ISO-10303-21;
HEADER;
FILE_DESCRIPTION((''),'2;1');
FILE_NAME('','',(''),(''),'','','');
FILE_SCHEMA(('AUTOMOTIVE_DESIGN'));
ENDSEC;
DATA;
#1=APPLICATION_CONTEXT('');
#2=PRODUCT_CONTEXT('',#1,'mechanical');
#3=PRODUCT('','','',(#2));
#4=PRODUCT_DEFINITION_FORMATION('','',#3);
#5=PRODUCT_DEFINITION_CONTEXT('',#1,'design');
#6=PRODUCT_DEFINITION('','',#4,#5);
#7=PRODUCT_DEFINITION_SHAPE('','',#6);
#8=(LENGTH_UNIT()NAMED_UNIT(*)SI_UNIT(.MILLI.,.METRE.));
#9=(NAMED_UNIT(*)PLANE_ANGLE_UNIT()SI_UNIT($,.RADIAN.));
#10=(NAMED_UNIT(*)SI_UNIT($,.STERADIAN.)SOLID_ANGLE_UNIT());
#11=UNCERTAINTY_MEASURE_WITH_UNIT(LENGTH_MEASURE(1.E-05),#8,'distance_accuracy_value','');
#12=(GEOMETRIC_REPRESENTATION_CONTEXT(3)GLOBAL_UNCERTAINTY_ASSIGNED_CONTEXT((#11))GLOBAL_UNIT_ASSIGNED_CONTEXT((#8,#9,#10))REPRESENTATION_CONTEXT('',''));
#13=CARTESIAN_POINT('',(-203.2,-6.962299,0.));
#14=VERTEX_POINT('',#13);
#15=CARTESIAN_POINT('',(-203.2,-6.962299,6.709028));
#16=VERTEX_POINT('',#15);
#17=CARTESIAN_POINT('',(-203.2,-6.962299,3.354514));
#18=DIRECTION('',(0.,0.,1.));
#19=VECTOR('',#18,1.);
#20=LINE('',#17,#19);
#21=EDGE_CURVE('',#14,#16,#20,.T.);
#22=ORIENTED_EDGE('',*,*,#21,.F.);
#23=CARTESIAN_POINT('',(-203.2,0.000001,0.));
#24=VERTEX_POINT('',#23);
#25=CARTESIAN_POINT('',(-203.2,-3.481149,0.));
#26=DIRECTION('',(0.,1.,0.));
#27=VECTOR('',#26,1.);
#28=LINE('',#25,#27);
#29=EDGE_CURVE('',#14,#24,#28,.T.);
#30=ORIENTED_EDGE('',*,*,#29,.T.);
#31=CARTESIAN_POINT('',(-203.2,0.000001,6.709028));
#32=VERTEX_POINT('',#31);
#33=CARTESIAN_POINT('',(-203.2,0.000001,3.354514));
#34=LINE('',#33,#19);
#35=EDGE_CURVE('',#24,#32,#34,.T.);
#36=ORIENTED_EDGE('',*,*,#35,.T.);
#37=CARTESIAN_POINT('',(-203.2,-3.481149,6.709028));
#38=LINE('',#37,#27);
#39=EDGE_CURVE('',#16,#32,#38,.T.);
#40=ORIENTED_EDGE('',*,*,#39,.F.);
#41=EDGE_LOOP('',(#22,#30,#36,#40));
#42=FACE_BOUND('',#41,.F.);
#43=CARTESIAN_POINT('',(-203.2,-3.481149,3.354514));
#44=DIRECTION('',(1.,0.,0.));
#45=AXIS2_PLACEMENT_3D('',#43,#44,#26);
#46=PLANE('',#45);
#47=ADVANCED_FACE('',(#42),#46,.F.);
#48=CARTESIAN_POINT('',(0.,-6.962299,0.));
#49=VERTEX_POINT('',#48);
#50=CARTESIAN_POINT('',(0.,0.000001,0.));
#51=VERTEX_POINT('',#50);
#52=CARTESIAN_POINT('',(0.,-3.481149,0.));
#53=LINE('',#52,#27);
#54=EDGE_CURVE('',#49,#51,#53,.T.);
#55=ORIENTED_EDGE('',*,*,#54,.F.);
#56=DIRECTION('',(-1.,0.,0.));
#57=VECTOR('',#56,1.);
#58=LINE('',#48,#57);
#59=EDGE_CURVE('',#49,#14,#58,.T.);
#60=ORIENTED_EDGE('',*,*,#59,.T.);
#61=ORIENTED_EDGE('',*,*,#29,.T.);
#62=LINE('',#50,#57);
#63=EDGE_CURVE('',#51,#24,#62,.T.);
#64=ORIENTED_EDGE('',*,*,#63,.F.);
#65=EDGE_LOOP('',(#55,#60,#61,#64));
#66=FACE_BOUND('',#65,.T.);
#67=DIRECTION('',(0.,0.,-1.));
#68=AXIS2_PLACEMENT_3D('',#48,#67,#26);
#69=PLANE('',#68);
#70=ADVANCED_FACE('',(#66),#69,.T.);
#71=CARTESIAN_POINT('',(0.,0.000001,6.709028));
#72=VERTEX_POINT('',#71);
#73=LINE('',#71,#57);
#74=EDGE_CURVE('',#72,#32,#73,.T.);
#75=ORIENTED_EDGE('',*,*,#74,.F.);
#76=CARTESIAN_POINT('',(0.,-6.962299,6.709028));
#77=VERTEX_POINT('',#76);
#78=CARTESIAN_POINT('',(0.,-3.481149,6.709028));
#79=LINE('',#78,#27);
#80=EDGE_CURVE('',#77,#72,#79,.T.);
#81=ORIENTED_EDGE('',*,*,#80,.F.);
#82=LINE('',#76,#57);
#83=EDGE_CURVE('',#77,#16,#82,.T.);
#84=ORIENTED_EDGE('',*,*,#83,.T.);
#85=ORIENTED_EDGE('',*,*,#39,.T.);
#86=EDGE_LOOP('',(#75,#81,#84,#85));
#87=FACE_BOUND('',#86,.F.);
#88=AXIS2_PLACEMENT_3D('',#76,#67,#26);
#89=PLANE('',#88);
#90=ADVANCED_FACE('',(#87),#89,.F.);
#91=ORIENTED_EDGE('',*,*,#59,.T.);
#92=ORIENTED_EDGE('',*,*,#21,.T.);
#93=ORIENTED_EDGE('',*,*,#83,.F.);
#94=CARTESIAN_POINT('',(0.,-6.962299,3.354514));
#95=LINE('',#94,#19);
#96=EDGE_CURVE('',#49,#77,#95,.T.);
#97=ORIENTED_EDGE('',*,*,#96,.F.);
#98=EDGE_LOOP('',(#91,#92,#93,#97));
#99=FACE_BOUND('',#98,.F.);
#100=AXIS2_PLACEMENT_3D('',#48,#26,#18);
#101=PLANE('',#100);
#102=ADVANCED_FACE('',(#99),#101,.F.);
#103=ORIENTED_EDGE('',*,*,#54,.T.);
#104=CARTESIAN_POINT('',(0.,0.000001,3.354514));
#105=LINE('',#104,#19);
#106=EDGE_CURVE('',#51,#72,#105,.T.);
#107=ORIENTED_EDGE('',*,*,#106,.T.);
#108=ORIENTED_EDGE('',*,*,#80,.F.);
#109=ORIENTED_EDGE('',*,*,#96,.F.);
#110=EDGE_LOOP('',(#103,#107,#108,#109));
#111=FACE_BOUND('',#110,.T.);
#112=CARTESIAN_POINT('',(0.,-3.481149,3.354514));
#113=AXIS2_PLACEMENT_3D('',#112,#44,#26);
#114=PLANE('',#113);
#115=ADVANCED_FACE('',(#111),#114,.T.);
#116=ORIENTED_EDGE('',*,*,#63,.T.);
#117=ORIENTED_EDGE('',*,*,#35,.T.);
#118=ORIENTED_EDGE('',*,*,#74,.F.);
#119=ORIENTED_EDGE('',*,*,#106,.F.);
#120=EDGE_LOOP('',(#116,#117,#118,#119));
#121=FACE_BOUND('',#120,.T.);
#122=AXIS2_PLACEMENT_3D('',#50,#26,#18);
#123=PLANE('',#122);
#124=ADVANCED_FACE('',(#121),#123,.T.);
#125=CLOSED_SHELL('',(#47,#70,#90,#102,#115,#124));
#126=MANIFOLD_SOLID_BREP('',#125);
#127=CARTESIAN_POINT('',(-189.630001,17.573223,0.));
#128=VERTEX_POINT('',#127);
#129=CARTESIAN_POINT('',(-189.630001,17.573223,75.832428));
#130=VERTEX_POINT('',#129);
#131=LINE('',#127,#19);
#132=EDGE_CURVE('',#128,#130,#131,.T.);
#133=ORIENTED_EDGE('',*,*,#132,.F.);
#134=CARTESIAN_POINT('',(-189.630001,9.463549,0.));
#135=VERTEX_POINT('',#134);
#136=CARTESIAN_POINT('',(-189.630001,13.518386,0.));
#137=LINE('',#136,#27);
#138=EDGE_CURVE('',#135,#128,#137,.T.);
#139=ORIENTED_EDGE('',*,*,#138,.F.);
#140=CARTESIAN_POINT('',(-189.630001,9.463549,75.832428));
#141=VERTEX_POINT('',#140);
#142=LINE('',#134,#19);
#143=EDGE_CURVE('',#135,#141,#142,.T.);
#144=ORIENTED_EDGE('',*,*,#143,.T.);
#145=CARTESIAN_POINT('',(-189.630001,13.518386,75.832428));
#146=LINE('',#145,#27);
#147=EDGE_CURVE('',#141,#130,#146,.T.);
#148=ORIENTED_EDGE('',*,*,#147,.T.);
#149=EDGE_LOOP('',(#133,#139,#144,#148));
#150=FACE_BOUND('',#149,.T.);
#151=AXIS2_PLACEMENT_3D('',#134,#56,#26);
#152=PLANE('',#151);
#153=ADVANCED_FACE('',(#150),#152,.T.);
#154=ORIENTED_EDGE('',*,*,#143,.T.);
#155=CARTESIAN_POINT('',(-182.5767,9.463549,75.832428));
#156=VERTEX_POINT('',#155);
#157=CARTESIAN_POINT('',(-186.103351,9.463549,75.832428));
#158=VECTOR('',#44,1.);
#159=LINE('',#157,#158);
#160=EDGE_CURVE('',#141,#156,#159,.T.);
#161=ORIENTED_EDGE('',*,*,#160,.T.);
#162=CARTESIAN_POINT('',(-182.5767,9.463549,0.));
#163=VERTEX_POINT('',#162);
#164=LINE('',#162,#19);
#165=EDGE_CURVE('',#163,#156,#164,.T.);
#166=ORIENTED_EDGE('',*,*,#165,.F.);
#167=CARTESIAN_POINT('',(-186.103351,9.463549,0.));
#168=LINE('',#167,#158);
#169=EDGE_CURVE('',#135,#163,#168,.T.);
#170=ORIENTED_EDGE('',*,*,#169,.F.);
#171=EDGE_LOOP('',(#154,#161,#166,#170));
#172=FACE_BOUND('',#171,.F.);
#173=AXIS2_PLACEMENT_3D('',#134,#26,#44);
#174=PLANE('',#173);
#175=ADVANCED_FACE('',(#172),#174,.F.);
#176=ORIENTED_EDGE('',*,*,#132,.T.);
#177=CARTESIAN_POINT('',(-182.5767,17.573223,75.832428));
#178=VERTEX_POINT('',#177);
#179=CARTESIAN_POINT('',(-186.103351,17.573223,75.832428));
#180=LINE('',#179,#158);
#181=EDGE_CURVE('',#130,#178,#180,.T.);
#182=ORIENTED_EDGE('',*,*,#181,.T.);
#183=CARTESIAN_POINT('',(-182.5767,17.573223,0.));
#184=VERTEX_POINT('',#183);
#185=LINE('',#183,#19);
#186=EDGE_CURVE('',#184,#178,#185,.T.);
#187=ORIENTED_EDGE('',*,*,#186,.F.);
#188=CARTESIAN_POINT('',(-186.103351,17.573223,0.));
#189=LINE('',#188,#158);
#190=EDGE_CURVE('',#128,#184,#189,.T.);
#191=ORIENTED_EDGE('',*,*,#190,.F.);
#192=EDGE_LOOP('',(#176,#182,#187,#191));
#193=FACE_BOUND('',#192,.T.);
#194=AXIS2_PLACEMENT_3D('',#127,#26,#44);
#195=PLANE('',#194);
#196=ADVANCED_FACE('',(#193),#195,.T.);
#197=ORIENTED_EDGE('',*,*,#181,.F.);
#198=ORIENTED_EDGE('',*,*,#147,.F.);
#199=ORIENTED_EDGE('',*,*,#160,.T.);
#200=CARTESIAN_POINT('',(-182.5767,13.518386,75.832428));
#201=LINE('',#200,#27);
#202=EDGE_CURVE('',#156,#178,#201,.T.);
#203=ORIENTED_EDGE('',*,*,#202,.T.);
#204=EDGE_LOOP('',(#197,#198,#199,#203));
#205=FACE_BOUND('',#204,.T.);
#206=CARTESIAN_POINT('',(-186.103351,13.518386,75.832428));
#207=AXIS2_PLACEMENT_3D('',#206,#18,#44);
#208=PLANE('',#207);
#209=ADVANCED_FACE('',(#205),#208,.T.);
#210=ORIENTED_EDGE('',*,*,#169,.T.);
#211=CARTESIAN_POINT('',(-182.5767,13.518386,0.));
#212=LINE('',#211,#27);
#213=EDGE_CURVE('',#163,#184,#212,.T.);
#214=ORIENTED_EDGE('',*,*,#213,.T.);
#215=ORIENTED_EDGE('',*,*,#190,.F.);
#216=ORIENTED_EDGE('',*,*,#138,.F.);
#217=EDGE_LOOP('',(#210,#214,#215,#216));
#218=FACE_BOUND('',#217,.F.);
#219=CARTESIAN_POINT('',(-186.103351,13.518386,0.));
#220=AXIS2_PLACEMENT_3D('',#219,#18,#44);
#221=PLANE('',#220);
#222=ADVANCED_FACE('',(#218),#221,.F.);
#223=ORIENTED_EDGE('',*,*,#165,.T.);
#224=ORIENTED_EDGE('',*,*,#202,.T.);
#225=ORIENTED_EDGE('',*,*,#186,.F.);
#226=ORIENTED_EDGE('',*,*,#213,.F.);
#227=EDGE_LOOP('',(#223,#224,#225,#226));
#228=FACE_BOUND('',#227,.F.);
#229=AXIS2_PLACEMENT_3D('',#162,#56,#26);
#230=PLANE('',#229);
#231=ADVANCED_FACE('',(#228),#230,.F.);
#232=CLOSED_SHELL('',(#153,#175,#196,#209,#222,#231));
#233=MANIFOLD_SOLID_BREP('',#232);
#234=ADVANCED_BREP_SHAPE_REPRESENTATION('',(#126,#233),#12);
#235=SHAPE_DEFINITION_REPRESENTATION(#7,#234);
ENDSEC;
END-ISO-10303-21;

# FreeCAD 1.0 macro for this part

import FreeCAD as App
import Part
import Sketcher
from FreeCAD import Vector
Q = App.Units.Quantity


def add_polygon(sketch, points):
    """Adds a closed chain of lines whose ends are joined by coincident constraints."""
    first, n = sketch.GeometryCount, len(points)
    for a, b in zip(points, points[1:] + points[:1]):
        sketch.addGeometry(Part.LineSegment(App.Vector(*a, 0), App.Vector(*b, 0)), False)
    for i in range(n):
        sketch.addConstraint(Sketcher.Constraint("Coincident", first + i, 2, first + (i + 1) % n, 1))

doc = App.newDocument("Part")
params = doc.addObject("Spreadsheet::Sheet", "Params")
for row, (alias, value) in enumerate([
    ("pad1_length", "8 in"),
    ("pad2_length", "75.832428 mm"),
], start=1):
    params.set(f"A{row}", alias)
    params.set(f"B{row}", "=" + value)
    params.setAlias(f"B{row}", alias)

body = doc.addObject("PartDesign::Body", "Body")

# Sketch on YZ plane
sketch1 = body.newObject("Sketcher::SketchObject", "Sketch")
sketch1.AttachmentSupport = (doc.getObject("YZ_Plane"), [""])
sketch1.MapMode = "FlatFace"
add_polygon(sketch1, [(-7, 7), (-7, 0), (0, 0), (0, 7)])  # lines 0-3
sketch1.addConstraint(Sketcher.Constraint("Vertical", 0))
sketch1.addConstraint(Sketcher.Constraint("Horizontal", 1))
sketch1.addConstraint(Sketcher.Constraint("Vertical", 2))
sketch1.addConstraint(Sketcher.Constraint("Horizontal", 3))
sketch1.addConstraint(Sketcher.Constraint("Coincident", 1, 2, -1, 1))
sketch1.addConstraint(Sketcher.Constraint("DistanceX", 1, 1, 1, 2, Q("6.962299 mm")))
sketch1.addConstraint(Sketcher.Constraint("DistanceY", 0, 2, 0, 1, Q("6.709028 mm")))
pad1 = body.newObject("PartDesign::Pad", "Pad")
pad1.Profile = sketch1
pad1.setExpression("Length", "Params.pad1_length")
pad1.Reversed = True
body2 = doc.addObject("PartDesign::Body", "Body001")

# Sketch on XY plane
sketch2 = body2.newObject("Sketcher::SketchObject", "Sketch001")
sketch2.AttachmentSupport = (doc.getObject("XY_Plane001"), [""])
sketch2.MapMode = "FlatFace"
add_polygon(sketch2, [(-190, 18), (-190, 9), (-183, 9), (-183, 18)])  # lines 0-3
sketch2.addConstraint(Sketcher.Constraint("Vertical", 0))
sketch2.addConstraint(Sketcher.Constraint("Horizontal", 1))
sketch2.addConstraint(Sketcher.Constraint("Vertical", 2))
sketch2.addConstraint(Sketcher.Constraint("Horizontal", 3))
sketch2.addConstraint(Sketcher.Constraint("DistanceX", 1, 1, 1, 2, Q("7.053301 mm")))
sketch2.addConstraint(Sketcher.Constraint("DistanceX", 0, 2, -1, 1, Q("189.630001 mm")))
sketch2.addConstraint(Sketcher.Constraint("DistanceY", 0, 2, 0, 1, Q("8.109674 mm")))
sketch2.addConstraint(Sketcher.Constraint("DistanceY", -1, 1, 0, 2, Q("9.463549 mm")))
pad2 = body2.newObject("PartDesign::Pad", "Pad001")
pad2.Profile = sketch2
pad2.setExpression("Length", "Params.pad2_length")

doc.recompute()
